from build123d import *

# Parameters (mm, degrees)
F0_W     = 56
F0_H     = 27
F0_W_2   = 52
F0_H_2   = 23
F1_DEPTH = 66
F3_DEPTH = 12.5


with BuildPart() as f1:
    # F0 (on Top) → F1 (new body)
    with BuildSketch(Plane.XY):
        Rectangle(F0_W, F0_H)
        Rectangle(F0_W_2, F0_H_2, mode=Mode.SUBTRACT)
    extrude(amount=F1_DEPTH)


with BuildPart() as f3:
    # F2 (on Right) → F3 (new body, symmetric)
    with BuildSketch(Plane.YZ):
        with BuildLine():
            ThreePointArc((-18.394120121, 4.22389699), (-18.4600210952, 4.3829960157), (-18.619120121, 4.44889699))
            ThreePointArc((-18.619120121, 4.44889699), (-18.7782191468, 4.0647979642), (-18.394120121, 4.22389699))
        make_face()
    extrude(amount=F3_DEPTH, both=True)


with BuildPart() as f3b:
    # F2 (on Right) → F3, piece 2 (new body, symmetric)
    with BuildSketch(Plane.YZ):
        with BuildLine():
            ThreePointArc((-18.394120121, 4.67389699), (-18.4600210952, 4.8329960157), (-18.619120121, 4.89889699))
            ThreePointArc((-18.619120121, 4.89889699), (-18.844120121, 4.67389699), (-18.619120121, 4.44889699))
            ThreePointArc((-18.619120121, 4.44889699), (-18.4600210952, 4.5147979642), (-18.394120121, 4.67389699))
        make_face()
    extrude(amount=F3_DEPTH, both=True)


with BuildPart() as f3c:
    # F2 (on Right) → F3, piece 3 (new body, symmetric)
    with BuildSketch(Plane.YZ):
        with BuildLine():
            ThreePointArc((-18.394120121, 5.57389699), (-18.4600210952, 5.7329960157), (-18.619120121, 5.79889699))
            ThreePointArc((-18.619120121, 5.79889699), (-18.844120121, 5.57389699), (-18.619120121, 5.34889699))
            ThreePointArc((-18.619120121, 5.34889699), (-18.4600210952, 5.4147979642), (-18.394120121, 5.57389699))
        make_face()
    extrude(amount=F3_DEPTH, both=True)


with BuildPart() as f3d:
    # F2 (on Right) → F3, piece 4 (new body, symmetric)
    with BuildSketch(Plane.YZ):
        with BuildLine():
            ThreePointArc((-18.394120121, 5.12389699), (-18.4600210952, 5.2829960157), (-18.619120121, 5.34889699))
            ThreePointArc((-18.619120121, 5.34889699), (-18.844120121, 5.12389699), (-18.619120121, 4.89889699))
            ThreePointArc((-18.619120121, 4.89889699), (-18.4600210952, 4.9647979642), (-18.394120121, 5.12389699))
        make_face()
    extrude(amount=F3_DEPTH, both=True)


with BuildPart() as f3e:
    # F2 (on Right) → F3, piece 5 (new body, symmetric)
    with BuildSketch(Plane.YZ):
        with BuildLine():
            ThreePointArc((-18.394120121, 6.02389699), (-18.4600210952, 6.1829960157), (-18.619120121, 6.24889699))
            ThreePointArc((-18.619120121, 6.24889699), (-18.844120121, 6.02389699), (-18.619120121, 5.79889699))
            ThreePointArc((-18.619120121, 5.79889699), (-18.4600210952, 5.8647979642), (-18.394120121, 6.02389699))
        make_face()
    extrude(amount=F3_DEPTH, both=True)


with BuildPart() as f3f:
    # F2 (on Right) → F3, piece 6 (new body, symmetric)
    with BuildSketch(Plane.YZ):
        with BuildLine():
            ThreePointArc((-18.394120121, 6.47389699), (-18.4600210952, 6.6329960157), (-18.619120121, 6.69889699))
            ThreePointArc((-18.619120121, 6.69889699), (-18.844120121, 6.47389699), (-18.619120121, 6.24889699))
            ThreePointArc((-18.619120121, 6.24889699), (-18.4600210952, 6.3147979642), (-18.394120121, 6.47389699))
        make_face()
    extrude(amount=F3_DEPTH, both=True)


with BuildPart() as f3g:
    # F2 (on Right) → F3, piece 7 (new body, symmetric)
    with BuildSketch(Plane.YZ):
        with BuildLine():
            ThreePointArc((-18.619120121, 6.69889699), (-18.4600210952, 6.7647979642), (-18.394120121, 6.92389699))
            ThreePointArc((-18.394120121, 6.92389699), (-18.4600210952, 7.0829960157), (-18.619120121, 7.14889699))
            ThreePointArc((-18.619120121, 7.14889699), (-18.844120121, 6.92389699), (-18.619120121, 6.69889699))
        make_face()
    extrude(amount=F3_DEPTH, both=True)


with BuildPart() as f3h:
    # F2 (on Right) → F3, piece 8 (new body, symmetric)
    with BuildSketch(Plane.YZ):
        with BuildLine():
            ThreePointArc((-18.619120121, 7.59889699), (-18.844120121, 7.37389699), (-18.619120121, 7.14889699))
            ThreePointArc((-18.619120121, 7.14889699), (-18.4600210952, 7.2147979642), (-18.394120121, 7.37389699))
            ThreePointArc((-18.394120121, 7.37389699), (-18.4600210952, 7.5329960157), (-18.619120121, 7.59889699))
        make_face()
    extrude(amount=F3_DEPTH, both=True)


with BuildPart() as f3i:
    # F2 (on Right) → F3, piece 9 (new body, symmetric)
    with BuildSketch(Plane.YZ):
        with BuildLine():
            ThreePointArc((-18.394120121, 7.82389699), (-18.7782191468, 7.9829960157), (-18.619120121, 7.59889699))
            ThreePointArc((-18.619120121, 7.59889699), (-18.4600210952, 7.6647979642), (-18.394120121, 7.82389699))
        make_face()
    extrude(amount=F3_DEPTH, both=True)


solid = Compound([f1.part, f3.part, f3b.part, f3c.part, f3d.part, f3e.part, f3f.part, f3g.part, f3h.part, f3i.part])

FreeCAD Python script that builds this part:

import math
import FreeCAD as App
import Part
import Sketcher
from FreeCAD import Vector
Q = App.Units.Quantity


def add_polygon(sketch, points):
    """Adds a closed chain of lines whose ends are joined by coincident constraints."""
    first, n = sketch.GeometryCount, len(points)
    for a, b in zip(points, points[1:] + points[:1]):
        sketch.addGeometry(Part.LineSegment(App.Vector(*a, 0), App.Vector(*b, 0)), False)
    for i in range(n):
        sketch.addConstraint(Sketcher.Constraint("Coincident", first + i, 2, first + (i + 1) % n, 1))

doc = App.newDocument("Part")
body = doc.addObject("PartDesign::Body", "Body")

sketch1 = body.newObject("Sketcher::SketchObject", "Sketch")
sketch1.AttachmentSupport = (doc.getObject("XY_Plane"), [""])
sketch1.MapMode = "FlatFace"
add_polygon(sketch1, [(-28, 14), (-28, -14), (28, -14), (28, 14)])
add_polygon(sketch1, [(26, -12), (-26, -12), (-26, 12), (26, 12)])
sketch1.addConstraint([
    Sketcher.Constraint("Vertical", 0),
    Sketcher.Constraint("Horizontal", 1),
    Sketcher.Constraint("Vertical", 2),
    Sketcher.Constraint("Horizontal", 3),
    Sketcher.Constraint("Horizontal", 4),
    Sketcher.Constraint("Vertical", 5),
    Sketcher.Constraint("Horizontal", 6),
    Sketcher.Constraint("Vertical", 7),
    Sketcher.Constraint("Symmetric", 0, 2, 2, 2, -1, 1),
    Sketcher.Constraint("Symmetric", 4, 2, 6, 2, -1, 1),
    Sketcher.Constraint("DistanceX", 1, 1, 1, 2, Q("56 mm")),
    Sketcher.Constraint("DistanceX", 4, 2, 4, 1, Q("52 mm")),
    Sketcher.Constraint("DistanceY", 0, 2, 0, 1, Q("27 mm")),
    Sketcher.Constraint("DistanceY", 5, 1, 5, 2, Q("23 mm")),
])
pad1 = body.newObject("PartDesign::Pad", "Pad")
pad1.Profile = sketch1
pad1.Length = 66
body2 = doc.addObject("PartDesign::Body", "Body001")

sketch2 = body2.newObject("Sketcher::SketchObject", "Sketch001")
sketch2.AttachmentSupport = (doc.getObject("YZ_Plane001"), [""])
sketch2.MapMode = "FlatFace"
sketch2.addGeometry([
    Part.ArcOfCircle(Part.Circle(Vector(-18.62, 4.22, 0), Vector(0, 0, 1), 0.23), math.radians(0), math.radians(90)),
    Part.ArcOfCircle(Part.Circle(Vector(-18.62, 4.22, 0), Vector(0, 0, 1), 0.23), math.radians(90), math.radians(360)),
], False)
sketch2.addConstraint([
    Sketcher.Constraint("Tangent", 0, 1, 1, 2),
    Sketcher.Constraint("Coincident", 1, 1, 0, 2),
    Sketcher.Constraint("Horizontal", 1, 3, 0, 1),
    Sketcher.Constraint("Vertical", 0, 3, 1, 1),
    Sketcher.Constraint("Radius", 0, Q("0.225 mm")),
    Sketcher.Constraint("DistanceX", 0, 3, -1, 1, Q("18.61912 mm")),
    Sketcher.Constraint("DistanceY", -1, 1, 0, 3, Q("4.223897 mm")),
])
pad2 = body2.newObject("PartDesign::Pad", "Pad001")
pad2.Profile = sketch2
pad2.Length = 25
pad2.Midplane = True
body3 = doc.addObject("PartDesign::Body", "Body002")

sketch3 = body3.newObject("Sketcher::SketchObject", "Sketch002")
sketch3.AttachmentSupport = (doc.getObject("YZ_Plane002"), [""])
sketch3.MapMode = "FlatFace"
sketch3.addGeometry([
    Part.ArcOfCircle(Part.Circle(Vector(-18.62, 4.67, 0), Vector(0, 0, 1), 0.23), math.radians(0), math.radians(90)),
    Part.ArcOfCircle(Part.Circle(Vector(-18.62, 4.67, 0), Vector(0, 0, 1), 0.23), math.radians(90), math.radians(270)),
    Part.ArcOfCircle(Part.Circle(Vector(-18.62, 4.67, 0), Vector(0, 0, 1), 0.23), math.radians(-90), math.radians(0)),
], False)
sketch3.addConstraint([
    Sketcher.Constraint("Tangent", 0, 2, 1, 1),
    Sketcher.Constraint("Tangent", 1, 2, 2, 1),
    Sketcher.Constraint("Tangent", 2, 2, 0, 1),
    Sketcher.Constraint("Horizontal", 1, 3, 2, 2),
    Sketcher.Constraint("Vertical", 2, 3, 0, 2),
    Sketcher.Constraint("Vertical", 0, 2, 1, 2),
    Sketcher.Constraint("Radius", 0, Q("0.225 mm")),
    Sketcher.Constraint("DistanceX", 0, 3, -1, 1, Q("18.61912 mm")),
    Sketcher.Constraint("DistanceY", -1, 1, 0, 3, Q("4.673897 mm")),
])
pad3 = body3.newObject("PartDesign::Pad", "Pad002")
pad3.Profile = sketch3
pad3.Length = 25
pad3.Midplane = True
body4 = doc.addObject("PartDesign::Body", "Body003")

sketch4 = body4.newObject("Sketcher::SketchObject", "Sketch003")
sketch4.AttachmentSupport = (doc.getObject("YZ_Plane003"), [""])
sketch4.MapMode = "FlatFace"
sketch4.addGeometry([
    Part.ArcOfCircle(Part.Circle(Vector(-18.62, 5.57, 0), Vector(0, 0, 1), 0.23), math.radians(0), math.radians(90)),
    Part.ArcOfCircle(Part.Circle(Vector(-18.62, 5.57, 0), Vector(0, 0, 1), 0.23), math.radians(90), math.radians(270)),
    Part.ArcOfCircle(Part.Circle(Vector(-18.62, 5.57, 0), Vector(0, 0, 1), 0.23), math.radians(-90), math.radians(0)),
], False)
sketch4.addConstraint([
    Sketcher.Constraint("Tangent", 0, 2, 1, 1),
    Sketcher.Constraint("Tangent", 1, 2, 2, 1),
    Sketcher.Constraint("Tangent", 2, 2, 0, 1),
    Sketcher.Constraint("Horizontal", 1, 3, 2, 2),
    Sketcher.Constraint("Vertical", 2, 3, 0, 2),
    Sketcher.Constraint("Vertical", 0, 2, 1, 2),
    Sketcher.Constraint("Radius", 0, Q("0.225 mm")),
    Sketcher.Constraint("DistanceX", 0, 3, -1, 1, Q("18.61912 mm")),
    Sketcher.Constraint("DistanceY", -1, 1, 0, 3, Q("5.573897 mm")),
])
pad4 = body4.newObject("PartDesign::Pad", "Pad003")
pad4.Profile = sketch4
pad4.Length = 25
pad4.Midplane = True
body5 = doc.addObject("PartDesign::Body", "Body004")

sketch5 = body5.newObject("Sketcher::SketchObject", "Sketch004")
sketch5.AttachmentSupport = (doc.getObject("YZ_Plane004"), [""])
sketch5.MapMode = "FlatFace"
sketch5.addGeometry([
    Part.ArcOfCircle(Part.Circle(Vector(-18.62, 5.12, 0), Vector(0, 0, 1), 0.23), math.radians(0), math.radians(90)),
    Part.ArcOfCircle(Part.Circle(Vector(-18.62, 5.12, 0), Vector(0, 0, 1), 0.23), math.radians(90), math.radians(270)),
    Part.ArcOfCircle(Part.Circle(Vector(-18.62, 5.12, 0), Vector(0, 0, 1), 0.23), math.radians(-90), math.radians(0)),
], False)
sketch5.addConstraint([
    Sketcher.Constraint("Tangent", 0, 2, 1, 1),
    Sketcher.Constraint("Tangent", 1, 2, 2, 1),
    Sketcher.Constraint("Tangent", 2, 2, 0, 1),
    Sketcher.Constraint("Horizontal", 1, 3, 2, 2),
    Sketcher.Constraint("Vertical", 2, 3, 0, 2),
    Sketcher.Constraint("Vertical", 0, 2, 1, 2),
    Sketcher.Constraint("Radius", 0, Q("0.225 mm")),
    Sketcher.Constraint("DistanceX", 0, 3, -1, 1, Q("18.61912 mm")),
    Sketcher.Constraint("DistanceY", -1, 1, 0, 3, Q("5.123897 mm")),
])
pad5 = body5.newObject("PartDesign::Pad", "Pad004")
pad5.Profile = sketch5
pad5.Length = 25
pad5.Midplane = True
body6 = doc.addObject("PartDesign::Body", "Body005")

sketch6 = body6.newObject("Sketcher::SketchObject", "Sketch005")
sketch6.AttachmentSupport = (doc.getObject("YZ_Plane005"), [""])
sketch6.MapMode = "FlatFace"
sketch6.addGeometry([
    Part.ArcOfCircle(Part.Circle(Vector(-18.62, 6.02, 0), Vector(0, 0, 1), 0.23), math.radians(0), math.radians(90)),
    Part.ArcOfCircle(Part.Circle(Vector(-18.62, 6.02, 0), Vector(0, 0, 1), 0.23), math.radians(90), math.radians(270)),
    Part.ArcOfCircle(Part.Circle(Vector(-18.62, 6.02, 0), Vector(0, 0, 1), 0.23), math.radians(-90), math.radians(0)),
], False)
sketch6.addConstraint([
    Sketcher.Constraint("Tangent", 0, 2, 1, 1),
    Sketcher.Constraint("Tangent", 1, 2, 2, 1),
    Sketcher.Constraint("Tangent", 2, 2, 0, 1),
    Sketcher.Constraint("Horizontal", 1, 3, 2, 2),
    Sketcher.Constraint("Vertical", 2, 3, 0, 2),
    Sketcher.Constraint("Vertical", 0, 2, 1, 2),
    Sketcher.Constraint("Radius", 0, Q("0.225 mm")),
    Sketcher.Constraint("DistanceX", 0, 3, -1, 1, Q("18.61912 mm")),
    Sketcher.Constraint("DistanceY", -1, 1, 0, 3, Q("6.023897 mm")),
])
pad6 = body6.newObject("PartDesign::Pad", "Pad005")
pad6.Profile = sketch6
pad6.Length = 25
pad6.Midplane = True
body7 = doc.addObject("PartDesign::Body", "Body006")

sketch7 = body7.newObject("Sketcher::SketchObject", "Sketch006")
sketch7.AttachmentSupport = (doc.getObject("YZ_Plane006"), [""])
sketch7.MapMode = "FlatFace"
sketch7.addGeometry([
    Part.ArcOfCircle(Part.Circle(Vector(-18.62, 6.47, 0), Vector(0, 0, 1), 0.23), math.radians(0), math.radians(90)),
    Part.ArcOfCircle(Part.Circle(Vector(-18.62, 6.47, 0), Vector(0, 0, 1), 0.23), math.radians(90), math.radians(270)),
    Part.ArcOfCircle(Part.Circle(Vector(-18.62, 6.47, 0), Vector(0, 0, 1), 0.23), math.radians(-90), math.radians(0)),
], False)
sketch7.addConstraint([
    Sketcher.Constraint("Tangent", 0, 2, 1, 1),
    Sketcher.Constraint("Tangent", 1, 2, 2, 1),
    Sketcher.Constraint("Tangent", 2, 2, 0, 1),
    Sketcher.Constraint("Horizontal", 1, 3, 2, 2),
    Sketcher.Constraint("Vertical", 2, 3, 0, 2),
    Sketcher.Constraint("Vertical", 0, 2, 1, 2),
    Sketcher.Constraint("Radius", 0, Q("0.225 mm")),
    Sketcher.Constraint("DistanceX", 0, 3, -1, 1, Q("18.61912 mm")),
    Sketcher.Constraint("DistanceY", -1, 1, 0, 3, Q("6.473897 mm")),
])
pad7 = body7.newObject("PartDesign::Pad", "Pad006")
pad7.Profile = sketch7
pad7.Length = 25
pad7.Midplane = True
body8 = doc.addObject("PartDesign::Body", "Body007")

sketch8 = body8.newObject("Sketcher::SketchObject", "Sketch007")
sketch8.AttachmentSupport = (doc.getObject("YZ_Plane007"), [""])
sketch8.MapMode = "FlatFace"
sketch8.addGeometry([
    Part.ArcOfCircle(Part.Circle(Vector(-18.62, 6.92, 0), Vector(0, 0, 1), 0.23), math.radians(-90), math.radians(0)),
    Part.ArcOfCircle(Part.Circle(Vector(-18.62, 6.92, 0), Vector(0, 0, 1), 0.23), math.radians(0), math.radians(90)),
    Part.ArcOfCircle(Part.Circle(Vector(-18.62, 6.92, 0), Vector(0, 0, 1), 0.23), math.radians(90), math.radians(270)),
], False)
sketch8.addConstraint([
    Sketcher.Constraint("Tangent", 0, 2, 1, 1),
    Sketcher.Constraint("Tangent", 1, 2, 2, 1),
    Sketcher.Constraint("Tangent", 2, 2, 0, 1),
    Sketcher.Constraint("Horizontal", 2, 3, 0, 2),
    Sketcher.Constraint("Vertical", 2, 3, 1, 2),
    Sketcher.Constraint("Vertical", 1, 2, 2, 2),
    Sketcher.Constraint("Radius", 0, Q("0.225 mm")),
    Sketcher.Constraint("DistanceX", 0, 3, -1, 1, Q("18.61912 mm")),
    Sketcher.Constraint("DistanceY", -1, 1, 0, 3, Q("6.923897 mm")),
])
pad8 = body8.newObject("PartDesign::Pad", "Pad007")
pad8.Profile = sketch8
pad8.Length = 25
pad8.Midplane = True
body9 = doc.addObject("PartDesign::Body", "Body008")

sketch9 = body9.newObject("Sketcher::SketchObject", "Sketch008")
sketch9.AttachmentSupport = (doc.getObject("YZ_Plane008"), [""])
sketch9.MapMode = "FlatFace"
sketch9.addGeometry([
    Part.ArcOfCircle(Part.Circle(Vector(-18.62, 7.37, 0), Vector(0, 0, 1), 0.23), math.radians(90), math.radians(270)),
    Part.ArcOfCircle(Part.Circle(Vector(-18.62, 7.37, 0), Vector(0, 0, 1), 0.23), math.radians(-90), math.radians(0)),
    Part.ArcOfCircle(Part.Circle(Vector(-18.62, 7.37, 0), Vector(0, 0, 1), 0.23), math.radians(0), math.radians(90)),
], False)
sketch9.addConstraint([
    Sketcher.Constraint("Tangent", 0, 2, 1, 1),
    Sketcher.Constraint("Tangent", 1, 2, 2, 1),
    Sketcher.Constraint("Tangent", 2, 2, 0, 1),
    Sketcher.Constraint("Horizontal", 2, 3, 1, 2),
    Sketcher.Constraint("Vertical", 2, 3, 0, 2),
    Sketcher.Constraint("Vertical", 0, 2, 2, 2),
    Sketcher.Constraint("Radius", 0, Q("0.225 mm")),
    Sketcher.Constraint("DistanceX", 0, 3, -1, 1, Q("18.61912 mm")),
    Sketcher.Constraint("DistanceY", -1, 1, 0, 3, Q("7.373897 mm")),
])
pad9 = body9.newObject("PartDesign::Pad", "Pad008")
pad9.Profile = sketch9
pad9.Length = 25
pad9.Midplane = True
body10 = doc.addObject("PartDesign::Body", "Body009")

sketch10 = body10.newObject("Sketcher::SketchObject", "Sketch009")
sketch10.AttachmentSupport = (doc.getObject("YZ_Plane009"), [""])
sketch10.MapMode = "FlatFace"
sketch10.addGeometry([
    Part.ArcOfCircle(Part.Circle(Vector(-18.62, 7.82, 0), Vector(0, 0, 1), 0.23), math.radians(0), math.radians(270)),
    Part.ArcOfCircle(Part.Circle(Vector(-18.62, 7.82, 0), Vector(0, 0, 1), 0.23), math.radians(-90), math.radians(0)),
], False)
sketch10.addConstraint([
    Sketcher.Constraint("Tangent", 0, 1, 1, 2),
    Sketcher.Constraint("Coincident", 1, 1, 0, 2),
    Sketcher.Constraint("Horizontal", 1, 3, 0, 1),
    Sketcher.Constraint("Vertical", 0, 3, 1, 1),
    Sketcher.Constraint("Radius", 0, Q("0.225 mm")),
    Sketcher.Constraint("DistanceX", 0, 3, -1, 1, Q("18.61912 mm")),
    Sketcher.Constraint("DistanceY", -1, 1, 0, 3, Q("7.823897 mm")),
])
pad10 = body10.newObject("PartDesign::Pad", "Pad009")
pad10.Profile = sketch10
pad10.Length = 25
pad10.Midplane = True

doc.recompute()
